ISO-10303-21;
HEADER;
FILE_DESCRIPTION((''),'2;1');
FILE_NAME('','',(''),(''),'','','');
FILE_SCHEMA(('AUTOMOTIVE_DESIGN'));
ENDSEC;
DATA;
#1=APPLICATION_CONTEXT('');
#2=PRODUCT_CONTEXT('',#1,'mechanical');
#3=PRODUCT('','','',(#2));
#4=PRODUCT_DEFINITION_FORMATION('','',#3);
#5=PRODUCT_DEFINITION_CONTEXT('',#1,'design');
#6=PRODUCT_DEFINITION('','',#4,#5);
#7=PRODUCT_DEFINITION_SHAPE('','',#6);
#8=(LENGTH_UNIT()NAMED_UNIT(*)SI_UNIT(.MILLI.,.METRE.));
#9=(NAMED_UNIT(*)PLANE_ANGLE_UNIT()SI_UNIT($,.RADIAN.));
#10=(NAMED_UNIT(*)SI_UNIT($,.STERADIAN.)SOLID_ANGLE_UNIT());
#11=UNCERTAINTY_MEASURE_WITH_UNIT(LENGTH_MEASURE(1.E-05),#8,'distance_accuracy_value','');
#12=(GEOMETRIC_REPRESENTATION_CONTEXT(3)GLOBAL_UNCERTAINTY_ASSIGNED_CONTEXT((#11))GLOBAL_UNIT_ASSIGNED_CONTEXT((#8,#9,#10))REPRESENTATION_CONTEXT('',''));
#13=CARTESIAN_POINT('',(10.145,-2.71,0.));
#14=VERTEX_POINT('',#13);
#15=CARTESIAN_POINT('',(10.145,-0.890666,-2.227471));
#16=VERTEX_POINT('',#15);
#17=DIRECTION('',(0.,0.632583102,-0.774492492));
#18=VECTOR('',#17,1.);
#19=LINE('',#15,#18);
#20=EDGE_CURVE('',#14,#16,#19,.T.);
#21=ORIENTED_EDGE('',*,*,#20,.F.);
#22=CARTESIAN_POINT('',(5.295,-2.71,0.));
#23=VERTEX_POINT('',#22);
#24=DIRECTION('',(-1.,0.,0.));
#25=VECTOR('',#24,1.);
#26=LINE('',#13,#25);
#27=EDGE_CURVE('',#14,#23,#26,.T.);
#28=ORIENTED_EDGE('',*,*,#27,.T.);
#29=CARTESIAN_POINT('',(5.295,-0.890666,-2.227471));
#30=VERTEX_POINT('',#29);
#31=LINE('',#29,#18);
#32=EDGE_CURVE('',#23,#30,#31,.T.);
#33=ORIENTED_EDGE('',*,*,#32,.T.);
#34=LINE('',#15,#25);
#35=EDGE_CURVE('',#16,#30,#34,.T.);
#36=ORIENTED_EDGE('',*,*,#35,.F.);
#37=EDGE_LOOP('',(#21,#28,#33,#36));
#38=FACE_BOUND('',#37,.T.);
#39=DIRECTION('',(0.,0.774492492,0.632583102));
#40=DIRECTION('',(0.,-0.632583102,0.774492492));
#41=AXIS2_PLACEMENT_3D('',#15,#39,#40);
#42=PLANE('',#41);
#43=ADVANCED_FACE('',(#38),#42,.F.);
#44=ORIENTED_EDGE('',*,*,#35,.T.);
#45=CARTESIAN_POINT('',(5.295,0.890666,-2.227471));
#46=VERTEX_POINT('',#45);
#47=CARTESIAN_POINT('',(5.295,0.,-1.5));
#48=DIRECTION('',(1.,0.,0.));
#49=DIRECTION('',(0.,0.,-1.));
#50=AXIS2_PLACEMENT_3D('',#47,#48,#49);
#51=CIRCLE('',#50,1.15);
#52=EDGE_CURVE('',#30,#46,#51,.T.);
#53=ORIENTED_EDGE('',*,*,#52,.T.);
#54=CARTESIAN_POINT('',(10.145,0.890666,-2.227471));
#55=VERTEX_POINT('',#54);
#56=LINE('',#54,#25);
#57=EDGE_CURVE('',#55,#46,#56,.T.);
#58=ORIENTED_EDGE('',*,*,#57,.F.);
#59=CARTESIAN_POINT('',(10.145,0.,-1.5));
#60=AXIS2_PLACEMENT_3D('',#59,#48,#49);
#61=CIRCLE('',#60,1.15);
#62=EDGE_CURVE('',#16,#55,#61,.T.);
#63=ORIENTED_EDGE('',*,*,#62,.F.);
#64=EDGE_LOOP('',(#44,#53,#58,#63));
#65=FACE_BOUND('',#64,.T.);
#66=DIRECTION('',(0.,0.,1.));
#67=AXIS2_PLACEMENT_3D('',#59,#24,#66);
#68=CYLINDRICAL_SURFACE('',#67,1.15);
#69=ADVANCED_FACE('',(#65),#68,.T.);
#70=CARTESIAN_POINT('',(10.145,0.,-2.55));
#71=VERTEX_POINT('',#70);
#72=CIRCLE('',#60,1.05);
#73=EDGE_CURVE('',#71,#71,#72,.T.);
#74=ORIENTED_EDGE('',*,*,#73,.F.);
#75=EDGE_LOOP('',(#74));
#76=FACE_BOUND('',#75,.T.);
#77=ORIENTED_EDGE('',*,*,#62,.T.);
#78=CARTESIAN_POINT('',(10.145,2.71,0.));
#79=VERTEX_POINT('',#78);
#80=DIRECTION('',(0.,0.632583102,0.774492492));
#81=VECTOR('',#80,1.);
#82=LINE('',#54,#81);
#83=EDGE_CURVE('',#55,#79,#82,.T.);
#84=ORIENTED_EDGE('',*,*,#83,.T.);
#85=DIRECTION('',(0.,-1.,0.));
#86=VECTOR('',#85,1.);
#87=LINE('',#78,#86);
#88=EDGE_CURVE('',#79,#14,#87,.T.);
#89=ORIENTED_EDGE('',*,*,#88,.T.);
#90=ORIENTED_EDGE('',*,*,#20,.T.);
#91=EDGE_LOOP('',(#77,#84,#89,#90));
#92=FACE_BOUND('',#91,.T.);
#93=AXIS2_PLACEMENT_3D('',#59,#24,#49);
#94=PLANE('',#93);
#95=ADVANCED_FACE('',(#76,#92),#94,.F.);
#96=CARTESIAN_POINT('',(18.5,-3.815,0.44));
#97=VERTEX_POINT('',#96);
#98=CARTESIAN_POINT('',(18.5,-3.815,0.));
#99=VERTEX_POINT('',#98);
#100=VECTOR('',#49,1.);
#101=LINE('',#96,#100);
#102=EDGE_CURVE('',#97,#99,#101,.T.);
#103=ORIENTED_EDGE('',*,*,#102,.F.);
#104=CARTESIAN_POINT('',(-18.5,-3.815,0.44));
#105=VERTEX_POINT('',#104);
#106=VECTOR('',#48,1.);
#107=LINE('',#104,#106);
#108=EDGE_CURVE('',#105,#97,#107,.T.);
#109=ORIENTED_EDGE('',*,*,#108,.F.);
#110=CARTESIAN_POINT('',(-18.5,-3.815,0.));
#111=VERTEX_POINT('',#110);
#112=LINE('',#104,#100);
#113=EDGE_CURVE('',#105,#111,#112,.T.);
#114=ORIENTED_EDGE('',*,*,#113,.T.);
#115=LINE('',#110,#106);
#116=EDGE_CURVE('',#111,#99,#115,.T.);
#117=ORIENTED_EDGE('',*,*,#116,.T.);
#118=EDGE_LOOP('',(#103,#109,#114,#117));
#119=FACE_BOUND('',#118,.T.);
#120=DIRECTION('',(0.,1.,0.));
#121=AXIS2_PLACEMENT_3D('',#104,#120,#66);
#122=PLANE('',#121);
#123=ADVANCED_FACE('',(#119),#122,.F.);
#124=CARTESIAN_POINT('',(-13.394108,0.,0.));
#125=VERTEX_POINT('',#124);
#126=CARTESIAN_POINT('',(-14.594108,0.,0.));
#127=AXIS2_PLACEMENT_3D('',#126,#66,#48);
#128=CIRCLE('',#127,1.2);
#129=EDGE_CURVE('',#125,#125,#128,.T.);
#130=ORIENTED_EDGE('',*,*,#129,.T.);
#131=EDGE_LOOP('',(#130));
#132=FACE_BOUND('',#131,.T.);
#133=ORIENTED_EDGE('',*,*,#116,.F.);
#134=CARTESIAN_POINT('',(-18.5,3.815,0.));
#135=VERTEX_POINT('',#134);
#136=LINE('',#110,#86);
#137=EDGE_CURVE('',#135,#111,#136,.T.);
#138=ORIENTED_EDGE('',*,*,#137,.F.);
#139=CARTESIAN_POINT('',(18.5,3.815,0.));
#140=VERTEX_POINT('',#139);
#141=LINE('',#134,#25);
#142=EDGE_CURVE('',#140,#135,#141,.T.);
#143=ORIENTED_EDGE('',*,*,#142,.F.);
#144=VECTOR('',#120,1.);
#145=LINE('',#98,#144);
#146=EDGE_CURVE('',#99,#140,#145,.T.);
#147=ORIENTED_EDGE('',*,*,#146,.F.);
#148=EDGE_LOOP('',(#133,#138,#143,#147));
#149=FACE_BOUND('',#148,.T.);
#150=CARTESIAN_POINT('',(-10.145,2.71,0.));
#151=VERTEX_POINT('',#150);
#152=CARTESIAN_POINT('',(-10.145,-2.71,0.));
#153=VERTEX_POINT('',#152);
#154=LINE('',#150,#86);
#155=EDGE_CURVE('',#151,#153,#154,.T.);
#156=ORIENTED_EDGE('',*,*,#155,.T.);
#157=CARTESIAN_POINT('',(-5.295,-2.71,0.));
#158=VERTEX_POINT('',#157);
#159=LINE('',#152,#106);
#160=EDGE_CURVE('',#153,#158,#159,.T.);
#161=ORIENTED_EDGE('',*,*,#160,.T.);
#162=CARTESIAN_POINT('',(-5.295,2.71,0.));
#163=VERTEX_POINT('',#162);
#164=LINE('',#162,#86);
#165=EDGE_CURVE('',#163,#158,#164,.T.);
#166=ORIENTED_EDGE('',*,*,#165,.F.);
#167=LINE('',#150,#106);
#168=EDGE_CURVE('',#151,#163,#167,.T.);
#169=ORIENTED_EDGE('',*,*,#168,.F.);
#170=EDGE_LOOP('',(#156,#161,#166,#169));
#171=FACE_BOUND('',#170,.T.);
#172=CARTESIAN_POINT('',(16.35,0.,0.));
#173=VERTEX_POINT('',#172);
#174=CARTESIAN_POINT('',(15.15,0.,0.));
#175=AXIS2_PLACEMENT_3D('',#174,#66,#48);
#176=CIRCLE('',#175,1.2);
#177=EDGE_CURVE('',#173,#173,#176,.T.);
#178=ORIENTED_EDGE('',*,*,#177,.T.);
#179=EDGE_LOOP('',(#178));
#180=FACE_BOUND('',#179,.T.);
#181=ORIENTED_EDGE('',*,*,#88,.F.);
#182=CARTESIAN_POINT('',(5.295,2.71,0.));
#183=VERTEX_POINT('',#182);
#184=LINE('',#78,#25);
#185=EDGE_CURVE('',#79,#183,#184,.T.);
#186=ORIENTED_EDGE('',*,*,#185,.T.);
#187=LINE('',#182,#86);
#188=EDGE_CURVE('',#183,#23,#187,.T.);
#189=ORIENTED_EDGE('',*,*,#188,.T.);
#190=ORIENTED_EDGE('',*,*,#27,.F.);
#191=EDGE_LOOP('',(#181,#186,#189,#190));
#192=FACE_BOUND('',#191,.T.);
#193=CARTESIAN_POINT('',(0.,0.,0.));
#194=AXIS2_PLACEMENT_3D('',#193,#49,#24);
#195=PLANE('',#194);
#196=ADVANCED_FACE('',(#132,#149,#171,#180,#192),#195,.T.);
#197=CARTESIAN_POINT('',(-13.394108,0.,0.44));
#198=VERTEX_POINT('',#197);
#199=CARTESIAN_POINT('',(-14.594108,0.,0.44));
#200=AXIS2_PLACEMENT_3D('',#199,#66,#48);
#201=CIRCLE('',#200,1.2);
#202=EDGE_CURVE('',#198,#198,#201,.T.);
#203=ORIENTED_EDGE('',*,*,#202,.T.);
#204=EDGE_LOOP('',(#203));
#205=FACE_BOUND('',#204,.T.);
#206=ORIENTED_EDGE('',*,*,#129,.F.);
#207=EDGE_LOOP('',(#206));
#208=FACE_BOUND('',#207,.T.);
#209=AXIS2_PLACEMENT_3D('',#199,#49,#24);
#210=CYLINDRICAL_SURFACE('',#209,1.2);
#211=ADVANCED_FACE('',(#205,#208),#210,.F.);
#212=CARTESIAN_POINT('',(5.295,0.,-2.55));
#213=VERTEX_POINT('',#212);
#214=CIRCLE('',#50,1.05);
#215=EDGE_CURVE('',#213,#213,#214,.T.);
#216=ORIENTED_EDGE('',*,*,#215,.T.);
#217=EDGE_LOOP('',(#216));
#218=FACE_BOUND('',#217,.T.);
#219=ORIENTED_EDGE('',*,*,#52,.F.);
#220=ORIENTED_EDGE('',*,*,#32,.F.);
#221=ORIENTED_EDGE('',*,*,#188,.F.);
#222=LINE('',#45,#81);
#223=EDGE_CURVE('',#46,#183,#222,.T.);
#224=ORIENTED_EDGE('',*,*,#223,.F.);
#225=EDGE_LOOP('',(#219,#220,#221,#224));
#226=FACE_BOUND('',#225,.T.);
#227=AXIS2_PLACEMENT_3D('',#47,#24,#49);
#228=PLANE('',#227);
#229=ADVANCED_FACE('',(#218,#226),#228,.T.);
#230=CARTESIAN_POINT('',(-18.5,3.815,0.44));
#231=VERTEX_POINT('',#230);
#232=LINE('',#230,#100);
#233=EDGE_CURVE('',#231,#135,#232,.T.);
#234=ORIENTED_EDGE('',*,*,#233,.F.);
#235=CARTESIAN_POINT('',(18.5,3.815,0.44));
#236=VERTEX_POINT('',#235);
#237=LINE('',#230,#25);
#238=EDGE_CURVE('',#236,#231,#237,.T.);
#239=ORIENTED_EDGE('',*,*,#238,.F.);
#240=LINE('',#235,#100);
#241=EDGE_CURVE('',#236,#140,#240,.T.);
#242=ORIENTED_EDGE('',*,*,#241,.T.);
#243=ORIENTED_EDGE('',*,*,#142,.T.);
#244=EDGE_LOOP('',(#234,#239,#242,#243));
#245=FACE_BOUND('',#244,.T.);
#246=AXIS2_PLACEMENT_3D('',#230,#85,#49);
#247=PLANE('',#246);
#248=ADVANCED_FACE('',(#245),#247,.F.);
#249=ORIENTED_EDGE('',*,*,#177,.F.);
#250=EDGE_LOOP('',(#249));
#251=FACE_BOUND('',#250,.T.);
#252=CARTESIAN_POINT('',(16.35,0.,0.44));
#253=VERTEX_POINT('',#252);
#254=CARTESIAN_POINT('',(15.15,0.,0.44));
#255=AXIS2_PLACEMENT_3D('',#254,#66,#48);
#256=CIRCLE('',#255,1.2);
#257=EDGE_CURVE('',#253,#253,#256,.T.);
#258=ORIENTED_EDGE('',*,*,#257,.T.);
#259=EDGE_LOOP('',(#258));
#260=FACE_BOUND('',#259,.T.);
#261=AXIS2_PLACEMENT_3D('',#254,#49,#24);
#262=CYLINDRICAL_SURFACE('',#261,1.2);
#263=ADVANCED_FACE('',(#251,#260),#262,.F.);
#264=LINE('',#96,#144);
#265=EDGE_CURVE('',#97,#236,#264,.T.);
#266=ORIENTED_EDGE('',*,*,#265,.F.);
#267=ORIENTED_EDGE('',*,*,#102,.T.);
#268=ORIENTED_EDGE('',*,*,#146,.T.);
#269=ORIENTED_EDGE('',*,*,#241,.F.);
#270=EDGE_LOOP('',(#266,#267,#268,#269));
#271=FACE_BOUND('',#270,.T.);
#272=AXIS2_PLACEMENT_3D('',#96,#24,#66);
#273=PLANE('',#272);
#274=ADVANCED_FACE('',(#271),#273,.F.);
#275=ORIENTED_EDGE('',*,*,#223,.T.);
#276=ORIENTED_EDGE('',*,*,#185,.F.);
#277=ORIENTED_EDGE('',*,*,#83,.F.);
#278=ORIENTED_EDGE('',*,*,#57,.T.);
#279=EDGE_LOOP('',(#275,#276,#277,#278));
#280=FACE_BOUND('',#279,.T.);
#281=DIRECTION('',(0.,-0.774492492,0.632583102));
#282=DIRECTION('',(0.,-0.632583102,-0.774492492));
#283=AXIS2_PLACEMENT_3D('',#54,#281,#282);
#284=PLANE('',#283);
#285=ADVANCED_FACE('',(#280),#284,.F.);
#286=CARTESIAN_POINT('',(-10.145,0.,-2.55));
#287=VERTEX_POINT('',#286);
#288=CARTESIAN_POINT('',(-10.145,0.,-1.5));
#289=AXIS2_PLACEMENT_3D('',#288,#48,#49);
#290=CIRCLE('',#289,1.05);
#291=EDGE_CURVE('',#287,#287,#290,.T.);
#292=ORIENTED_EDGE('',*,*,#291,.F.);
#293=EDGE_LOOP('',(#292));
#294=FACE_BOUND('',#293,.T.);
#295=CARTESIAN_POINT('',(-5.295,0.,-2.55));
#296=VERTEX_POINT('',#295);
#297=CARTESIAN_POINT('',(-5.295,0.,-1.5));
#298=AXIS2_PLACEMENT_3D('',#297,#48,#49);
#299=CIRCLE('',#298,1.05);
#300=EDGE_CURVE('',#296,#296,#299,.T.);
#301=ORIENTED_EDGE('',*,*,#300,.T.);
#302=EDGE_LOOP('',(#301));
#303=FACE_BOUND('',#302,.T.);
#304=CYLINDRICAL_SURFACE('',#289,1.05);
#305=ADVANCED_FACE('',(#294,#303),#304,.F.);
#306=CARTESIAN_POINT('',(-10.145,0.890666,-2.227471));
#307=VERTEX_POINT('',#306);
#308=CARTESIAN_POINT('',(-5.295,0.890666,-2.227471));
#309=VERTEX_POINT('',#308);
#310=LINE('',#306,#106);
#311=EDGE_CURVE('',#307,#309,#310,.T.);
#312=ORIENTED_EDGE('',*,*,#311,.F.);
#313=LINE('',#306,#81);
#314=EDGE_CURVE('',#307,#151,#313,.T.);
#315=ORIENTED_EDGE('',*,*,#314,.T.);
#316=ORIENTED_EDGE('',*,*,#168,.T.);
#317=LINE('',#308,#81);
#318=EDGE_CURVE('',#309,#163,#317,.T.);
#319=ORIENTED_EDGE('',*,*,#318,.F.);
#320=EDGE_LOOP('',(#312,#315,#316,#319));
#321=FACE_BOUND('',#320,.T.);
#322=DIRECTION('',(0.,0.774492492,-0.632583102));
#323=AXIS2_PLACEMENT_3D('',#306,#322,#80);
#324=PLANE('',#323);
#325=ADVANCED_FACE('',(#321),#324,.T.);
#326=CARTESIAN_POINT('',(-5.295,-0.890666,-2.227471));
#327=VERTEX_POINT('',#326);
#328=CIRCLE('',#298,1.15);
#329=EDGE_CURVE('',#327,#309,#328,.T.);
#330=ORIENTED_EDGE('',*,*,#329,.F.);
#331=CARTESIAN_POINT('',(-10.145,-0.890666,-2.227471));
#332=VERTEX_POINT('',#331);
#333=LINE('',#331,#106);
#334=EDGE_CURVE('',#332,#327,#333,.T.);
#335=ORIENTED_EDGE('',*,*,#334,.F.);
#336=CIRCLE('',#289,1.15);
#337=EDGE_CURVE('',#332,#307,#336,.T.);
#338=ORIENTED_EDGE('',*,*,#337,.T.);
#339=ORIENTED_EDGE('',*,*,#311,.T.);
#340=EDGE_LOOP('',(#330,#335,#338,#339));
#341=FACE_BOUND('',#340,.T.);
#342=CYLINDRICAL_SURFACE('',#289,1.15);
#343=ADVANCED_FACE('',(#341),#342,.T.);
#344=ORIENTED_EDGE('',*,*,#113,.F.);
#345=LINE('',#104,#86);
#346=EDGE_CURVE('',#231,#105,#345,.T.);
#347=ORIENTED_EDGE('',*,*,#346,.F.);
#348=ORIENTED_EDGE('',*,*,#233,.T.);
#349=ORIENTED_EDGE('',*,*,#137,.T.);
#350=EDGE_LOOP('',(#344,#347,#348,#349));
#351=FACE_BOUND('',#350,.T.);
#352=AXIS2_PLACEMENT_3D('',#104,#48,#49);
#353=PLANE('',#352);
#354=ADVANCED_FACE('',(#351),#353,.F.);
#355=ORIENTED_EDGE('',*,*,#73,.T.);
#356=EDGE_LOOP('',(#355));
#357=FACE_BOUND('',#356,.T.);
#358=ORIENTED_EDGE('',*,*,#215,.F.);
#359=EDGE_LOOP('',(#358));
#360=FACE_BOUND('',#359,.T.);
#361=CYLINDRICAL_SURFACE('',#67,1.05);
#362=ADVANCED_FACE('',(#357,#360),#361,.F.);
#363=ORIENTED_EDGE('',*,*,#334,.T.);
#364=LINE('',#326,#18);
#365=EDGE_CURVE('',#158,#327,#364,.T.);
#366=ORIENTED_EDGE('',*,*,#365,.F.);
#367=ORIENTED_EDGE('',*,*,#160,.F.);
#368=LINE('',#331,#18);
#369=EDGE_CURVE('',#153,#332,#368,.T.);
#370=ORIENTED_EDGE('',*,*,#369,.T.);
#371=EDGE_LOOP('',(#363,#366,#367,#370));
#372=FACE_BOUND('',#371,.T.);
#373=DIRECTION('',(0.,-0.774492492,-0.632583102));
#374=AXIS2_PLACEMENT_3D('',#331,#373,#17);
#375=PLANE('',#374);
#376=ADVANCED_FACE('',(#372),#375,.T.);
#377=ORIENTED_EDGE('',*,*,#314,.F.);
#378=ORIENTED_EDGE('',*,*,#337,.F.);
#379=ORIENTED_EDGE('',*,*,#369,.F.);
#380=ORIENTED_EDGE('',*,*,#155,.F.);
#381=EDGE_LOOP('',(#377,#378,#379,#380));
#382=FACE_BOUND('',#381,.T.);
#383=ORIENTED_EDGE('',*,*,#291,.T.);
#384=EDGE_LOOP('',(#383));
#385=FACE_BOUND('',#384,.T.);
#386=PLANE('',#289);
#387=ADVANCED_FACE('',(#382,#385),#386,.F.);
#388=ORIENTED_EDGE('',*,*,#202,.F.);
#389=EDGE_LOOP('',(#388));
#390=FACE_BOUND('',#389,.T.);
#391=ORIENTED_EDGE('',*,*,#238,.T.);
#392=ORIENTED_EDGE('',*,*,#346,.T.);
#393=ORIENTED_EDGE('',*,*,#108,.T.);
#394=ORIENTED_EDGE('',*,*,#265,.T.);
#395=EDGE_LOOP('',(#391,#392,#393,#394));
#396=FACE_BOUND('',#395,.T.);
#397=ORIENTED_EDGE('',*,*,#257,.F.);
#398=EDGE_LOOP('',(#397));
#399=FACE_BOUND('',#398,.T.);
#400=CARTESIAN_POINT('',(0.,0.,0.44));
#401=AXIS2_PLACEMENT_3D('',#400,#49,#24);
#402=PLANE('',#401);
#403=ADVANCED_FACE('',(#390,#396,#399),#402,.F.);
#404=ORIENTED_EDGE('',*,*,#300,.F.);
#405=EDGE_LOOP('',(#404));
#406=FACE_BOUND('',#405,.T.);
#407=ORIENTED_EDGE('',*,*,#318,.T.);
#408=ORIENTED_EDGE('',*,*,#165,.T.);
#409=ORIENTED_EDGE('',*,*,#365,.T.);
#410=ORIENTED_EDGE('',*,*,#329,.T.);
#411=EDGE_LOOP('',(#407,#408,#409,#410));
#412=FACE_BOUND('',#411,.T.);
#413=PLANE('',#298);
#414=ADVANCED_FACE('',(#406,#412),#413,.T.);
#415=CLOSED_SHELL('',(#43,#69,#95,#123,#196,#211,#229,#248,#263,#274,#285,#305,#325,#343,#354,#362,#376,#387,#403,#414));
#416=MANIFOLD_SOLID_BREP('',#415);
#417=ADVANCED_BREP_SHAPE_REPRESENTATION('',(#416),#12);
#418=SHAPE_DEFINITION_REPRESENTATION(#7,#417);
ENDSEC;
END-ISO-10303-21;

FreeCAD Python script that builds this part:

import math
import FreeCAD as App
import Part
import Sketcher
from FreeCAD import Vector

doc = App.newDocument("Part")
body = doc.addObject("PartDesign::Body", "Body")

sketch1 = body.newObject("Sketcher::SketchObject", "Sketch")
sketch1.AttachmentSupport = (doc.getObject("XY_Plane"), [""])
sketch1.MapMode = "FlatFace"
sketch1.addGeometry([
    Part.LineSegment(Vector(-18.5, 3.815, 0), Vector(-18.5, -3.815, 0)),
    Part.LineSegment(Vector(-18.5, -3.815, 0), Vector(18.5, -3.815, 0)),
    Part.LineSegment(Vector(18.5, -3.815, 0), Vector(18.5, 3.815, 0)),
    Part.LineSegment(Vector(18.5, 3.815, 0), Vector(-18.5, 3.815, 0)),
    Part.Circle(Vector(-14.594108, 0, 0), Vector(0, 0, 1), 1.2),
    Part.Circle(Vector(15.15, 0, 0), Vector(0, 0, 1), 1.2),
], False)
sketch1.addConstraint([
    Sketcher.Constraint("Coincident", 0, 2, 1, 1),
    Sketcher.Constraint("Coincident", 1, 2, 2, 1),
    Sketcher.Constraint("Coincident", 2, 2, 3, 1),
    Sketcher.Constraint("Coincident", 3, 2, 0, 1),
    Sketcher.Constraint("Vertical", 0),
    Sketcher.Constraint("Horizontal", 1),
    Sketcher.Constraint("Vertical", 2),
    Sketcher.Constraint("Horizontal", 3),
    Sketcher.Constraint("Equal", 4, 5),
    Sketcher.Constraint("Symmetric", 0, 2, 2, 2, -1, 1),
    Sketcher.Constraint("PointOnObject", 4, 3, -1),
    Sketcher.Constraint("PointOnObject", 5, 3, -1),
    Sketcher.Constraint("Diameter", 4, 2.4),
    Sketcher.Constraint("DistanceX", 1, 1, 1, 2, 37.0),
    Sketcher.Constraint("DistanceY", 0, 2, 0, 1, 7.63),
    Sketcher.Constraint("DistanceX", -1, 1, 5, 3, 15.15),
    Sketcher.Constraint("DistanceX", 4, 3, -1, 1, 14.594108),
])
pad1 = body.newObject("PartDesign::Pad", "Pad")
pad1.Profile = sketch1
pad1.Length = 0.44

sketch2 = body.newObject("Sketcher::SketchObject", "Sketch001")
sketch2.AttachmentSupport = (doc.getObject("YZ_Plane"), [""])
sketch2.MapMode = "FlatFace"
sketch2.AttachmentOffset = App.Placement(Vector(0, 0, -5.295), App.Rotation())
sketch2.addGeometry([
    Part.LineSegment(Vector(0.890666, -2.227471, 0), Vector(2.71, 0, 0)),
    Part.LineSegment(Vector(2.71, 0, 0), Vector(-2.71, 0, 0)),
    Part.LineSegment(Vector(-2.71, 0, 0), Vector(-0.890666, -2.227471, 0)),
    Part.ArcOfCircle(Part.Circle(Vector(0, -1.5, 0), Vector(0, 0, 1), 1.15), math.radians(-140.759043), math.radians(-39.240957)),
    Part.Circle(Vector(0, -1.5, 0), Vector(0, 0, 1), 1.05),
], False)
sketch2.addConstraint([
    Sketcher.Constraint("Coincident", 0, 2, 1, 1),
    Sketcher.Constraint("Coincident", 1, 2, 2, 1),
    Sketcher.Constraint("Tangent", 2, 2, 3, 1),
    Sketcher.Constraint("Tangent", 3, 2, 0, 1),
    Sketcher.Constraint("Horizontal", 1),
    Sketcher.Constraint("Coincident", 4, 3, 3, 3),
    Sketcher.Constraint("Symmetric", 0, 2, 1, 2, -1, 1),
    Sketcher.Constraint("PointOnObject", 3, 3, -2),
    Sketcher.Constraint("Diameter", 4, 2.1),
    Sketcher.Constraint("Radius", 3, 1.15),
    Sketcher.Constraint("DistanceX", 1, 2, 1, 1, 5.42),
    Sketcher.Constraint("DistanceY", 3, 3, -1, 1, 1.5),
])
pad2 = body.newObject("PartDesign::Pad", "Pad001")
pad2.Profile = sketch2
pad2.Length = 4.85
pad2.Reversed = True
doc.recompute()

mirrored = body.newObject("PartDesign::Mirrored", "Mirrored")
mirrored.Originals = [pad2]
mirrored.MirrorPlane = (doc.getObject("YZ_Plane"), [""])
body.Tip = mirrored

doc.recompute()
